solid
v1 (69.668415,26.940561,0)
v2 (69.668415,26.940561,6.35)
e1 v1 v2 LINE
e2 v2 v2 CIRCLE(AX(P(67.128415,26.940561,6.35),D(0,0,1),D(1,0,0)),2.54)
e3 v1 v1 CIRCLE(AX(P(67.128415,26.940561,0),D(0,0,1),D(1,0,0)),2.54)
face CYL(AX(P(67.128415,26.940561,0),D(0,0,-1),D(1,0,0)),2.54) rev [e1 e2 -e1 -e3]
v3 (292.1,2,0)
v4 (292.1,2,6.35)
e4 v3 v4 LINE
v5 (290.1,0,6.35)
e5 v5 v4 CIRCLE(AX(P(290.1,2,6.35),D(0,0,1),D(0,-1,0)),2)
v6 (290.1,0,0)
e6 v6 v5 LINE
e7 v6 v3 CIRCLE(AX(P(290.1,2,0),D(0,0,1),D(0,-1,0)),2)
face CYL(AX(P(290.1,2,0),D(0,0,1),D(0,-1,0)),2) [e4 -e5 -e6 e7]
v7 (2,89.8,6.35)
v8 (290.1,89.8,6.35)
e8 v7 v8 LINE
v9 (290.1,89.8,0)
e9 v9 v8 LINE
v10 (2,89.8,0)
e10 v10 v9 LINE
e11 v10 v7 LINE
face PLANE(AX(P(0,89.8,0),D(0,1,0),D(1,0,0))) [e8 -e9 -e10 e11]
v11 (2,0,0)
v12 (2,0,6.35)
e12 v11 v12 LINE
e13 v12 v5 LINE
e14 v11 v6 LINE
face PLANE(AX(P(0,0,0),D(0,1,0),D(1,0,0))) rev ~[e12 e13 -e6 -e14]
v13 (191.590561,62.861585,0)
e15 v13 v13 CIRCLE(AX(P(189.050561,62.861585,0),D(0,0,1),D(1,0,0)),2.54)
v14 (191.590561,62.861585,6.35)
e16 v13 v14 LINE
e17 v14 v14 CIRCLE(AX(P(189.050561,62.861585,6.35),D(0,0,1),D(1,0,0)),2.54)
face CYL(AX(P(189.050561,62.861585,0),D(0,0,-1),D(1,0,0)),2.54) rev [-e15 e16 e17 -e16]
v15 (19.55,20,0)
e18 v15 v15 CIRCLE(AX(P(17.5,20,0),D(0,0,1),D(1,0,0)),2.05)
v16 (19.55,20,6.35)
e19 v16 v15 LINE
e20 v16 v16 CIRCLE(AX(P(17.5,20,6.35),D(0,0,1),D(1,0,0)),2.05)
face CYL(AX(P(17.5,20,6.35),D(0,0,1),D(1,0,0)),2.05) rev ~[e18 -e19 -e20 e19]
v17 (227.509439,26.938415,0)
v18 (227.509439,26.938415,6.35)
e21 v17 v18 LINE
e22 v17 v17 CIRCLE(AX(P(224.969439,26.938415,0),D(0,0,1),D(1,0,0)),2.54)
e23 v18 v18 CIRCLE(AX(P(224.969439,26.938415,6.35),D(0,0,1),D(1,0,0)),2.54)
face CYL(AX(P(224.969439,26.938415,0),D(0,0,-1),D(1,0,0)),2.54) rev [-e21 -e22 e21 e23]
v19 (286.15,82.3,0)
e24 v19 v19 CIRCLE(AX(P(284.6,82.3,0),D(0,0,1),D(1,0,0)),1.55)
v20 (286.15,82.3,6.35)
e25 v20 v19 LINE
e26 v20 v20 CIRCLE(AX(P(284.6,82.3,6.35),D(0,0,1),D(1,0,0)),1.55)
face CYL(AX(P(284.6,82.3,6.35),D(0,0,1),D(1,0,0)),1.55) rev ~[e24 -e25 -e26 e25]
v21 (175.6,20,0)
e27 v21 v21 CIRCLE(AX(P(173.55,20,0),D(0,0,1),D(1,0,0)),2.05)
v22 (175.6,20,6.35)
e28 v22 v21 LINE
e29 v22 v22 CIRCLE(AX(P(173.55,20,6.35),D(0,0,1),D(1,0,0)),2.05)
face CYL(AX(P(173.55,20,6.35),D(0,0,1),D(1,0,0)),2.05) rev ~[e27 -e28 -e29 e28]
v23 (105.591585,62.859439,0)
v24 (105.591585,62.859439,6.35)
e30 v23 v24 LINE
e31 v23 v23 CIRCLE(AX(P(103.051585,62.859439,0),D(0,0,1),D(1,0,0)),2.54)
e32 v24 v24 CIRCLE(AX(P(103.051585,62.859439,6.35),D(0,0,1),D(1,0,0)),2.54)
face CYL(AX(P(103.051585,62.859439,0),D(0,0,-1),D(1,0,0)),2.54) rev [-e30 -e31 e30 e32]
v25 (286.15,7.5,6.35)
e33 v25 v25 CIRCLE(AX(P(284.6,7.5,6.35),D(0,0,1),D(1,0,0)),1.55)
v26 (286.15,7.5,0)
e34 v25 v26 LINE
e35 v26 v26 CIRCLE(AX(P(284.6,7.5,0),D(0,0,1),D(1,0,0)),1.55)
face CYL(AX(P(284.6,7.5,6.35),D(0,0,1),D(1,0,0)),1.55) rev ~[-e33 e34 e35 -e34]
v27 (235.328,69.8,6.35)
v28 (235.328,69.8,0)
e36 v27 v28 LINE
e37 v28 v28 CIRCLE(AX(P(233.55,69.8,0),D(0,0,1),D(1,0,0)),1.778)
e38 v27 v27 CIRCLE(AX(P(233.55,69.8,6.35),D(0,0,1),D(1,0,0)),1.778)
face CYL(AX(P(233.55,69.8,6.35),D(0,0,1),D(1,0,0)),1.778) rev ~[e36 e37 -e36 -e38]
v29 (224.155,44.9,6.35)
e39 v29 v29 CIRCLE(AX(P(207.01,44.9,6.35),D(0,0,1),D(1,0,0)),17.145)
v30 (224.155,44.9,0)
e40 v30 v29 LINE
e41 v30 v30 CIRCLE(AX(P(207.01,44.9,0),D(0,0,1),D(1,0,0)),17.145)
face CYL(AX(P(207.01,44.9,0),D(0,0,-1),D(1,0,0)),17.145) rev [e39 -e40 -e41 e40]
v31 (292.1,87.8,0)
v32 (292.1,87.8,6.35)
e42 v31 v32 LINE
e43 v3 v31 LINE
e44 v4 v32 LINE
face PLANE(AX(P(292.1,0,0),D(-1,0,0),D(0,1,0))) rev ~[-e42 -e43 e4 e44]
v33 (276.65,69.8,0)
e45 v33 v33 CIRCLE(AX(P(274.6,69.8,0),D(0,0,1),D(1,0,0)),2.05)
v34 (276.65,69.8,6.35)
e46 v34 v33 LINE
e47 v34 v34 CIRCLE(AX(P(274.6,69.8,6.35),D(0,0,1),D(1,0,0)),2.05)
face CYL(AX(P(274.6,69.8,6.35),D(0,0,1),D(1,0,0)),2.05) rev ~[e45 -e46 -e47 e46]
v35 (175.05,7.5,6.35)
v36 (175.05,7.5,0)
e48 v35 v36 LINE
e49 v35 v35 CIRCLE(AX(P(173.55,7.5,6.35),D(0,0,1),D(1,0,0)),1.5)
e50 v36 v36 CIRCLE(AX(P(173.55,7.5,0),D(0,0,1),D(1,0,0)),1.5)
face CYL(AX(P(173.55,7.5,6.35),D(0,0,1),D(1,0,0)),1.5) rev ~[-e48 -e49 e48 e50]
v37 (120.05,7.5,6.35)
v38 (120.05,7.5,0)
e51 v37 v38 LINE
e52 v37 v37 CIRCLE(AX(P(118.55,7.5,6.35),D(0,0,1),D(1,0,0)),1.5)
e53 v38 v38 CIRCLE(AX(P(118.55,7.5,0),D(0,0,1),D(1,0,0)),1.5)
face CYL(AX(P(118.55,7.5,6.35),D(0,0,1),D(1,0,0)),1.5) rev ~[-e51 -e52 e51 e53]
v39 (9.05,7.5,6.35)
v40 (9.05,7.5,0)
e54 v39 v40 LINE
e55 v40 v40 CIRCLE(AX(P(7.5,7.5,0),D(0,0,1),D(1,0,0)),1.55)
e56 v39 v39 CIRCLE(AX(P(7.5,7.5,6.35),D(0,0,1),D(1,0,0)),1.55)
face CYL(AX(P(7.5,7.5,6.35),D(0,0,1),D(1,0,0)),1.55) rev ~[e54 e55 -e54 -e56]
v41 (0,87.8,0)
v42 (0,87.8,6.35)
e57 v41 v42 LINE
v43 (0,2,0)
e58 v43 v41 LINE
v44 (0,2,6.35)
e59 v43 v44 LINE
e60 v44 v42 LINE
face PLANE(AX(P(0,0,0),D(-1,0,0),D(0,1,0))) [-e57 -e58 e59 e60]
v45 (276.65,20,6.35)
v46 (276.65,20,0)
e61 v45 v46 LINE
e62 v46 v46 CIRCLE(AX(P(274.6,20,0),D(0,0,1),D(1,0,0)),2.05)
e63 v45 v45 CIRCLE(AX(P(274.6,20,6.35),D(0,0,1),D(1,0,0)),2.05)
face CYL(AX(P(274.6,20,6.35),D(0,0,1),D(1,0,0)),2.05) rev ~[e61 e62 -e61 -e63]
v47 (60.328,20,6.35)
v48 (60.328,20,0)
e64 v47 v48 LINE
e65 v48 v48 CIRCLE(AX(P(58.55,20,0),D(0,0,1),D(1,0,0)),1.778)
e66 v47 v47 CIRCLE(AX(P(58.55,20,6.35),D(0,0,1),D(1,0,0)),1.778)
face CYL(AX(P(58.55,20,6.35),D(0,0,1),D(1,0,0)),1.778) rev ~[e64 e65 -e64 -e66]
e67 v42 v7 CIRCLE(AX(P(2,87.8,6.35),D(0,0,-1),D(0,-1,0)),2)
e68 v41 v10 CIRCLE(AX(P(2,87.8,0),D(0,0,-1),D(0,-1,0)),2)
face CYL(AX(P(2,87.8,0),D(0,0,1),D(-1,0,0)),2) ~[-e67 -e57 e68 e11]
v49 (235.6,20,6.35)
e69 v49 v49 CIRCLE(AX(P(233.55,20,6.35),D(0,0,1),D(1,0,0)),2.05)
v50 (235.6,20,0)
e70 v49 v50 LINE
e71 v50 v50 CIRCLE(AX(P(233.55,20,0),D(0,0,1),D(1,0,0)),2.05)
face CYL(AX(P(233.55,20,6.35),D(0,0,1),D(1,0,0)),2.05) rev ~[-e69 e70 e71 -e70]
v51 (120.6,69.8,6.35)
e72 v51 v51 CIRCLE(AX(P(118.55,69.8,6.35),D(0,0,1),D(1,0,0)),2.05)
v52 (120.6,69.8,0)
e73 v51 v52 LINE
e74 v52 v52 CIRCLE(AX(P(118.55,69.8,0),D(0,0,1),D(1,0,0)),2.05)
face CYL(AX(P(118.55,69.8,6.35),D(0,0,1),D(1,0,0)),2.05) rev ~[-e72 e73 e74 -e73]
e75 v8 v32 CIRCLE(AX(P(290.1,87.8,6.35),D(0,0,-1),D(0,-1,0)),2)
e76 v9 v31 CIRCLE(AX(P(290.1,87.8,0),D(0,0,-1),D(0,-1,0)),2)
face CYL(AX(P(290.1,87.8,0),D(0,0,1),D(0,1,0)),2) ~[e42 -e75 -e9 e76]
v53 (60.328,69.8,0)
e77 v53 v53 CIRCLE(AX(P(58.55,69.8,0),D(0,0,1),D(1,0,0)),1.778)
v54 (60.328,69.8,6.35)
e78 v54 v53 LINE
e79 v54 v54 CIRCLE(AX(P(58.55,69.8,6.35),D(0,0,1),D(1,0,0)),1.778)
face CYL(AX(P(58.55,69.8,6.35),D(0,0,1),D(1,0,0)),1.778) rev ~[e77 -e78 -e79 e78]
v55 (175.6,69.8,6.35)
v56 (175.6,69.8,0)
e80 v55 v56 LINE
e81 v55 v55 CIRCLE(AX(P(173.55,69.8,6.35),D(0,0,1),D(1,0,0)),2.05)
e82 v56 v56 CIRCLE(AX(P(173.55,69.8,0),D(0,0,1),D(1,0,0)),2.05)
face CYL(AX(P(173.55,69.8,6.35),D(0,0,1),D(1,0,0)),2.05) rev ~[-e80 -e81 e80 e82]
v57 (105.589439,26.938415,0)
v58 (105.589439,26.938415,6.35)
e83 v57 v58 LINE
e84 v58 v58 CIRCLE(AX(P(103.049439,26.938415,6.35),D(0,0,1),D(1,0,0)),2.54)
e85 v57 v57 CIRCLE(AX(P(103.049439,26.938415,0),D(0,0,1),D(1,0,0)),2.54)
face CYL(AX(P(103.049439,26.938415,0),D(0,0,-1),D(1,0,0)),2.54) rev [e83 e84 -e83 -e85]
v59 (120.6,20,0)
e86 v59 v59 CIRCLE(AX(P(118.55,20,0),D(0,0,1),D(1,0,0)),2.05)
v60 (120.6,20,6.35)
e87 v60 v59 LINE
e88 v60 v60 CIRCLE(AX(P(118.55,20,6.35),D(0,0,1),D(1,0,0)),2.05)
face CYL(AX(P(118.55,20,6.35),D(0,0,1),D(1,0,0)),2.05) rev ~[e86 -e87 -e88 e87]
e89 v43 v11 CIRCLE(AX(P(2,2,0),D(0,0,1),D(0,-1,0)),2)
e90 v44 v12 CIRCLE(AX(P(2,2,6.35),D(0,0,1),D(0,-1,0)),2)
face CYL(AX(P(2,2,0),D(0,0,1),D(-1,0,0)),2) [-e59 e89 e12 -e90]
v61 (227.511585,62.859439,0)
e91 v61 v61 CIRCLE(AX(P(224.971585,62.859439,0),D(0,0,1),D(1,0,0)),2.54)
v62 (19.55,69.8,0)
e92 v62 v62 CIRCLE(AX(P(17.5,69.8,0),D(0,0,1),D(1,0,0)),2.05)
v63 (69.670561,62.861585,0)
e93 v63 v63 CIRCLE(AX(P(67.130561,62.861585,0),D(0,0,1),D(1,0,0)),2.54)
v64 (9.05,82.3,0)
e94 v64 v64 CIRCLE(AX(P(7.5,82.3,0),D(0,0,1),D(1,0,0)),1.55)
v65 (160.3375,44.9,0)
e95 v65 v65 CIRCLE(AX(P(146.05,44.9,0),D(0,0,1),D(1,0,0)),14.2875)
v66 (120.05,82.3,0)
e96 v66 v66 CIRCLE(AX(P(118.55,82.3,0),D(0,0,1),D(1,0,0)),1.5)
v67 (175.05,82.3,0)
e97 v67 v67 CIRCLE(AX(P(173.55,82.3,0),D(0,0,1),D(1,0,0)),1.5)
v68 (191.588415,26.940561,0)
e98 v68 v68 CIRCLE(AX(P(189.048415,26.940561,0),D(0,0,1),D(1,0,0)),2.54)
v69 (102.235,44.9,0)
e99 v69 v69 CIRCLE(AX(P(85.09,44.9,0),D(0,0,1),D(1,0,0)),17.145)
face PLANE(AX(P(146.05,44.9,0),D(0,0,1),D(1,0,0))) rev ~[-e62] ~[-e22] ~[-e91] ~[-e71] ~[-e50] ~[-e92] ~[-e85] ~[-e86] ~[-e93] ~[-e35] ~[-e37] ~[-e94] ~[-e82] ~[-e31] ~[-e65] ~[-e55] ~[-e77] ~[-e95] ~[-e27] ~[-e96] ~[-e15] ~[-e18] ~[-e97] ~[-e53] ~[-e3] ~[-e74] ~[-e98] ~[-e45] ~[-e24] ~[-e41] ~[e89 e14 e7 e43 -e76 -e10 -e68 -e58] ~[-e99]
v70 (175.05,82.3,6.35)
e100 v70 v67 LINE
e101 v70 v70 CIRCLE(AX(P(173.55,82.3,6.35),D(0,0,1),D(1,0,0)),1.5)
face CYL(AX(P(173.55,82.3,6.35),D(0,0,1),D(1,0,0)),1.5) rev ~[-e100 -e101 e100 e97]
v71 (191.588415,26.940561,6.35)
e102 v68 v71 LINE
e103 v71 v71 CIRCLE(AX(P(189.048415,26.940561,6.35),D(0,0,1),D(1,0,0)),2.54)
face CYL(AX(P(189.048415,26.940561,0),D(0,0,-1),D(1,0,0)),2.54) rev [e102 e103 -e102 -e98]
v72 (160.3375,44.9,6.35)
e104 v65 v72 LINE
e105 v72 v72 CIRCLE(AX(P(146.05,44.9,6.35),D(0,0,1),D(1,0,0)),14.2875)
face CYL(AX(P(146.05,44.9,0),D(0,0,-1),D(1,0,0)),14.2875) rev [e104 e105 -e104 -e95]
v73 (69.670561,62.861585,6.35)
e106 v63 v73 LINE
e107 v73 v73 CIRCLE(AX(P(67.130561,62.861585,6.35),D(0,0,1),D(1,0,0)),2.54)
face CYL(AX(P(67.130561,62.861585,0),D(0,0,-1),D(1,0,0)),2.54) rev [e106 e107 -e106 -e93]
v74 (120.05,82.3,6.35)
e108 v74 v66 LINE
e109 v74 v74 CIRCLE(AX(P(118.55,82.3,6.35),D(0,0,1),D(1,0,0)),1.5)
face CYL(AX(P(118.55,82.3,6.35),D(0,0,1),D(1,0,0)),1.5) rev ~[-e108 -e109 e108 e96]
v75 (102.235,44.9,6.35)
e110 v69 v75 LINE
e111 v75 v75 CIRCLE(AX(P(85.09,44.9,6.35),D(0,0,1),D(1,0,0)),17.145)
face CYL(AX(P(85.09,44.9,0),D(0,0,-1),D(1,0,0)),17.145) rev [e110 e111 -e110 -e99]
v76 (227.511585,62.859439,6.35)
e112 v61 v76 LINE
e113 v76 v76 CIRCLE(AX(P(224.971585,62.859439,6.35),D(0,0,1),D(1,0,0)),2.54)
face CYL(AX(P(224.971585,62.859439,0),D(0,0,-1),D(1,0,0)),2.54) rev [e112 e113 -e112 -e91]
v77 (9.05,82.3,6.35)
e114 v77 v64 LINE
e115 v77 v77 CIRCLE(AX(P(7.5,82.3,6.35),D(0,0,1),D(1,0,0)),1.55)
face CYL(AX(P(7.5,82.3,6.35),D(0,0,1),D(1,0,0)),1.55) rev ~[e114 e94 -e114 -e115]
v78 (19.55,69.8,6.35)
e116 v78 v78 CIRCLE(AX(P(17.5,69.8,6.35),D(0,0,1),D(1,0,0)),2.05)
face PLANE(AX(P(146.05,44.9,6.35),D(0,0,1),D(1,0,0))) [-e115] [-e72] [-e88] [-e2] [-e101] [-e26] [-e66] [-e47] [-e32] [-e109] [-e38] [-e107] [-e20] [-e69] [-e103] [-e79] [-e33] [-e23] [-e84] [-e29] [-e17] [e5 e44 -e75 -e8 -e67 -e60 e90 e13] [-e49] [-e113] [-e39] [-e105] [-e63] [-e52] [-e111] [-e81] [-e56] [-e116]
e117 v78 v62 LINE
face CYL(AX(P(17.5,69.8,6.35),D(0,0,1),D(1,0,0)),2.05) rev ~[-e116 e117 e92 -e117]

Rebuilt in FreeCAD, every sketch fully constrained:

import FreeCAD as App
import Part
import Sketcher

V = App.Vector


def edges_at(feature, points):
    """Names of the edges that pass closest to the given points."""
    edges = feature.Shape.Edges
    near = lambda p: min(range(len(edges)), key=lambda i: edges[i].distToShape(Part.Vertex(*p))[0])
    return sorted({f"Edge{near(p) + 1}" for p in points})

doc = App.newDocument("Part")
body = doc.addObject("PartDesign::Body", "Body")

sketch1 = body.newObject("Sketcher::SketchObject", "Sketch")
sketch1.AttachmentSupport = (doc.getObject("XY_Plane"), [""])
sketch1.MapMode = "FlatFace"
sketch1.addGeometry([
    Part.LineSegment(V(0, 89.8, 0), V(0, 0, 0)),
    Part.LineSegment(V(0, 0, 0), V(292.1, 0, 0)),
    Part.LineSegment(V(292.1, 0, 0), V(292.1, 89.8, 0)),
    Part.LineSegment(V(292.1, 89.8, 0), V(0, 89.8, 0)),
    Part.Circle(V(67.128415, 26.940561, 0), V(0, 0, 1), 2.54),
    Part.Circle(V(103.049439, 26.938415, 0), V(0, 0, 1), 2.54),
    Part.Circle(V(85.09, 44.9, 0), V(0, 0, 1), 17.145),
    Part.Circle(V(189.048415, 26.940561, 0), V(0, 0, 1), 2.54),
    Part.Circle(V(224.969439, 26.938415, 0), V(0, 0, 1), 2.54),
    Part.Circle(V(146.05, 44.9, 0), V(0, 0, 1), 14.2875),
    Part.Circle(V(207.01, 44.9, 0), V(0, 0, 1), 17.145),
    Part.Circle(V(67.130561, 62.861585, 0), V(0, 0, 1), 2.54),
    Part.Circle(V(103.051585, 62.859439, 0), V(0, 0, 1), 2.54),
    Part.Circle(V(189.050561, 62.861585, 0), V(0, 0, 1), 2.54),
    Part.Circle(V(224.971585, 62.859439, 0), V(0, 0, 1), 2.54),
], False)
sketch1.addConstraint([
    Sketcher.Constraint("Coincident", 0, 2, 1, 1),
    Sketcher.Constraint("Coincident", 1, 2, 2, 1),
    Sketcher.Constraint("Coincident", 2, 2, 3, 1),
    Sketcher.Constraint("Coincident", 3, 2, 0, 1),
    Sketcher.Constraint("Vertical", 0),
    Sketcher.Constraint("Horizontal", 1),
    Sketcher.Constraint("Vertical", 2),
    Sketcher.Constraint("Horizontal", 3),
    Sketcher.Constraint("Coincident", 0, 2, -1, 1),
    Sketcher.Constraint("Equal", 4, 5),
    Sketcher.Constraint("Equal", 5, 7),
    Sketcher.Constraint("Equal", 7, 8),
    Sketcher.Constraint("Equal", 6, 10),
    Sketcher.Constraint("Equal", 8, 11),
    Sketcher.Constraint("Equal", 11, 12),
    Sketcher.Constraint("Equal", 12, 13),
    Sketcher.Constraint("Equal", 13, 14),
    Sketcher.Constraint("Horizontal", 4, 3, 7, 3),
    Sketcher.Constraint("Horizontal", 5, 3, 8, 3),
    Sketcher.Constraint("Horizontal", 6, 3, 9, 3),
    Sketcher.Constraint("Horizontal", 9, 3, 10, 3),
    Sketcher.Constraint("Horizontal", 11, 3, 13, 3),
    Sketcher.Constraint("Horizontal", 12, 3, 14, 3),
    Sketcher.Constraint("Diameter", 4, 5.08),
    Sketcher.Constraint("Diameter", 6, 34.29),
    Sketcher.Constraint("Diameter", 9, 28.575),
    Sketcher.Constraint("DistanceX", 1, 1, 1, 2, 292.1),
    Sketcher.Constraint("DistanceY", 0, 2, 0, 1, 89.8),
    Sketcher.Constraint("DistanceY", -1, 1, 6, 3, 44.9),
    Sketcher.Constraint("DistanceX", -1, 1, 6, 3, 85.09),
    Sketcher.Constraint("DistanceX", -1, 1, 9, 3, 146.05),
    Sketcher.Constraint("DistanceX", -1, 1, 10, 3, 207.01),
    Sketcher.Constraint("DistanceX", 4, 3, 7, 3, 121.92),
    Sketcher.Constraint("DistanceX", 5, 3, 8, 3, 121.92),
    Sketcher.Constraint("DistanceY", -1, 1, 4, 3, 26.940561),
    Sketcher.Constraint("DistanceX", -1, 1, 5, 3, 103.049439),
    Sketcher.Constraint("DistanceX", -1, 1, 11, 3, 67.130561),
    Sketcher.Constraint("DistanceY", -1, 1, 12, 3, 62.859439),
    Sketcher.Constraint("DistanceX", -1, 1, 13, 3, 189.050561),
    Sketcher.Constraint("DistanceY", 5, 3, 11, 3, 35.923171),
    Sketcher.Constraint("DistanceX", 4, 3, 12, 3, 35.923171),
    Sketcher.Constraint("DistanceX", 7, 3, 14, 3, 35.923171),
    Sketcher.Constraint("DistanceX", -1, 1, 4, 3, 67.128415),
    Sketcher.Constraint("DistanceY", -1, 1, 5, 3, 26.938415),
])
pad1 = body.newObject("PartDesign::Pad", "Pad")
pad1.Profile = sketch1
pad1.Length = 6.35

sketch2 = body.newObject("Sketcher::SketchObject", "Sketch001")
sketch2.AttachmentSupport = (doc.getObject("XY_Plane"), [""])
sketch2.MapMode = "FlatFace"
sketch2.AttachmentOffset = App.Placement(V(0, 0, 6.35), App.Rotation())
sketch2.addGeometry([
    Part.Circle(V(118.55, 20, 0), V(0, 0, 1), 2.05),
    Part.Circle(V(118.55, 69.8, 0), V(0, 0, 1), 2.05),
    Part.Circle(V(173.55, 20, 0), V(0, 0, 1), 2.05),
    Part.Circle(V(173.55, 69.8, 0), V(0, 0, 1), 2.05),
], False)
sketch2.addConstraint([
    Sketcher.Constraint("Equal", 0, 1),
    Sketcher.Constraint("Equal", 1, 2),
    Sketcher.Constraint("Equal", 2, 3),
    Sketcher.Constraint("Horizontal", 0, 3, 2, 3),
    Sketcher.Constraint("Horizontal", 1, 3, 3, 3),
    Sketcher.Constraint("Vertical", 0, 3, 1, 3),
    Sketcher.Constraint("Vertical", 2, 3, 3, 3),
    Sketcher.Constraint("Diameter", 0, 4.1),
    Sketcher.Constraint("DistanceY", -1, 1, 0, 3, 20.0),
    Sketcher.Constraint("DistanceX", 0, 3, 2, 3, 55.0),
    Sketcher.Constraint("DistanceY", -1, 1, 1, 3, 69.8),
    Sketcher.Constraint("DistanceX", -1, 1, 0, 3, 118.55),
])
pocket1 = body.newObject("PartDesign::Pocket", "Pocket")
pocket1.Profile = sketch2
pocket1.Length = 10

sketch3 = body.newObject("Sketcher::SketchObject", "Sketch002")
sketch3.AttachmentSupport = (doc.getObject("XY_Plane"), [""])
sketch3.MapMode = "FlatFace"
sketch3.AttachmentOffset = App.Placement(V(0, 0, 6.35), App.Rotation())
sketch3.addGeometry([
    Part.Circle(V(284.6, 7.5, 0), V(0, 0, 1), 1.55),
    Part.Circle(V(7.5, 7.5, 0), V(0, 0, 1), 1.55),
    Part.Circle(V(7.5, 82.3, 0), V(0, 0, 1), 1.55),
    Part.Circle(V(284.6, 82.3, 0), V(0, 0, 1), 1.55),
    Part.Circle(V(274.6, 20, 0), V(0, 0, 1), 2.05),
    Part.Circle(V(17.5, 20, 0), V(0, 0, 1), 2.05),
    Part.Circle(V(17.5, 69.8, 0), V(0, 0, 1), 2.05),
    Part.Circle(V(274.6, 69.8, 0), V(0, 0, 1), 2.05),
    Part.Circle(V(173.55, 7.5, 0), V(0, 0, 1), 1.5),
    Part.Circle(V(173.55, 82.3, 0), V(0, 0, 1), 1.5),
    Part.Circle(V(118.55, 82.3, 0), V(0, 0, 1), 1.5),
    Part.Circle(V(118.55, 7.5, 0), V(0, 0, 1), 1.5),
], False)
sketch3.addConstraint([
    Sketcher.Constraint("Equal", 0, 1),
    Sketcher.Constraint("Equal", 1, 2),
    Sketcher.Constraint("Equal", 2, 3),
    Sketcher.Constraint("Equal", 4, 5),
    Sketcher.Constraint("Equal", 5, 6),
    Sketcher.Constraint("Equal", 6, 7),
    Sketcher.Constraint("Equal", 8, 9),
    Sketcher.Constraint("Equal", 9, 10),
    Sketcher.Constraint("Equal", 10, 11),
    Sketcher.Constraint("Horizontal", 0, 3, 1, 3),
    Sketcher.Constraint("Horizontal", 2, 3, 3, 3),
    Sketcher.Constraint("Horizontal", 4, 3, 5, 3),
    Sketcher.Constraint("Horizontal", 6, 3, 7, 3),
    Sketcher.Constraint("Horizontal", 1, 3, 8, 3),
    Sketcher.Constraint("Horizontal", 3, 3, 9, 3),
    Sketcher.Constraint("Horizontal", 9, 3, 10, 3),
    Sketcher.Constraint("Horizontal", 8, 3, 11, 3),
    Sketcher.Constraint("Vertical", 1, 3, 2, 3),
    Sketcher.Constraint("Vertical", 0, 3, 3, 3),
    Sketcher.Constraint("Vertical", 5, 3, 6, 3),
    Sketcher.Constraint("Vertical", 4, 3, 7, 3),
    Sketcher.Constraint("Vertical", 8, 3, 9, 3),
    Sketcher.Constraint("Vertical", 10, 3, 11, 3),
    Sketcher.Constraint("Diameter", 8, 3.0),
    Sketcher.Constraint("Diameter", 0, 3.1),
    Sketcher.Constraint("Diameter", 4, 4.1),
    Sketcher.Constraint("DistanceY", -1, 1, 4, 3, 20.0),
    Sketcher.Constraint("DistanceX", 4, 3, 0, 3, 10.0),
    Sketcher.Constraint("DistanceX", 1, 3, 5, 3, 10.0),
    Sketcher.Constraint("DistanceX", 10, 3, 9, 3, 55.0),
    Sketcher.Constraint("DistanceX", -1, 1, 0, 3, 284.6),
    Sketcher.Constraint("DistanceY", -1, 1, 0, 3, 7.5),
    Sketcher.Constraint("DistanceX", -1, 1, 1, 3, 7.5),
    Sketcher.Constraint("DistanceY", -1, 1, 2, 3, 82.3),
    Sketcher.Constraint("DistanceY", -1, 1, 6, 3, 69.8),
    Sketcher.Constraint("DistanceX", -1, 1, 8, 3, 173.55),
])
pocket2 = body.newObject("PartDesign::Pocket", "Pocket001")
pocket2.Profile = sketch3
pocket2.Length = 10
doc.recompute()

fillet = body.newObject("PartDesign::Fillet", "Fillet")
fillet.Base = (pocket2, edges_at(pocket2, [
    (0, 89.8, 3.175),
    (292.1, 89.8, 3.175),
    (292.1, 0, 3.175),
    (0, 0, 3.175),
]))
fillet.Radius = 2

sketch4 = body.newObject("Sketcher::SketchObject", "Sketch003")
sketch4.AttachmentSupport = (doc.getObject("XY_Plane"), [""])
sketch4.MapMode = "FlatFace"
sketch4.AttachmentOffset = App.Placement(V(0, 0, 6.35), App.Rotation())
sketch4.addGeometry([
    Part.Circle(V(233.55, 20, 0), V(0, 0, 1), 2.05),
    Part.Circle(V(233.55, 69.8, 0), V(0, 0, 1), 1.778),
    Part.Circle(V(58.55, 69.8, 0), V(0, 0, 1), 1.778),
    Part.Circle(V(58.55, 20, 0), V(0, 0, 1), 1.778),
], False)
sketch4.addConstraint([
    Sketcher.Constraint("Equal", 1, 2),
    Sketcher.Constraint("Equal", 2, 3),
    Sketcher.Constraint("Horizontal", 1, 3, 2, 3),
    Sketcher.Constraint("Horizontal", 0, 3, 3, 3),
    Sketcher.Constraint("Vertical", 0, 3, 1, 3),
    Sketcher.Constraint("Vertical", 2, 3, 3, 3),
    Sketcher.Constraint("Diameter", 0, 4.1),
    Sketcher.Constraint("Diameter", 1, 3.556),
    Sketcher.Constraint("DistanceY", -1, 1, 0, 3, 20.0),
    Sketcher.Constraint("DistanceX", 2, 3, 1, 3, 175.0),
    Sketcher.Constraint("DistanceY", -1, 1, 1, 3, 69.8),
    Sketcher.Constraint("DistanceX", -1, 1, 0, 3, 233.55),
])
pocket3 = body.newObject("PartDesign::Pocket", "Pocket002")
pocket3.Profile = sketch4
pocket3.Type = "ThroughAll"

doc.recompute()
